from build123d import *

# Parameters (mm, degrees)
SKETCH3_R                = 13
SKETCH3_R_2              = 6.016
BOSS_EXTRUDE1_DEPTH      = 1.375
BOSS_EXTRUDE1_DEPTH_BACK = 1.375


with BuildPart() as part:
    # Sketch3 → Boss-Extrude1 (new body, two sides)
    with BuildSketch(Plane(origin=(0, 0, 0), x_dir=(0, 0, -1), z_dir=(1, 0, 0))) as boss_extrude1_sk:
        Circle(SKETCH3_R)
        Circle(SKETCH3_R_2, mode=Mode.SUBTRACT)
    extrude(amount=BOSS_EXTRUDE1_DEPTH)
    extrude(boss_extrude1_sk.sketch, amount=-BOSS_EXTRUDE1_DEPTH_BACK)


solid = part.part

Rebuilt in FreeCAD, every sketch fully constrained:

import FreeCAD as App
import Part
import Sketcher

doc = App.newDocument("Part")
body = doc.addObject("PartDesign::Body", "Body")

sketch1 = doc.addObject("Sketcher::SketchObject", "Sketch")
body.addObject(sketch1)
sketch1.AttachmentSupport = (doc.YZ_Plane, [""])
sketch1.MapMode = "FlatFace"
sketch1.addGeometry(Part.Circle(App.Vector(0, 0, 0), App.Vector(0, 0, 1), 13), False)
sketch1.addGeometry(Part.Circle(App.Vector(0, 0, 0), App.Vector(0, 0, 1), 6), False)
sketch1.addConstraint(Sketcher.Constraint("Coincident", 0, 3, -1, 1))
sketch1.addConstraint(Sketcher.Constraint("Coincident", 1, 3, -1, 1))
sketch1.addConstraint(Sketcher.Constraint("Diameter", 0, 26.0))
sketch1.addConstraint(Sketcher.Constraint("Diameter", 1, 12.032))
pad1 = doc.addObject("PartDesign::Pad", "Pad")
body.addObject(pad1)
pad1.Profile = sketch1
pad1.Type = "TwoLengths"
pad1.Length = 1.375
pad1.Length2 = 1.375

doc.recompute()
